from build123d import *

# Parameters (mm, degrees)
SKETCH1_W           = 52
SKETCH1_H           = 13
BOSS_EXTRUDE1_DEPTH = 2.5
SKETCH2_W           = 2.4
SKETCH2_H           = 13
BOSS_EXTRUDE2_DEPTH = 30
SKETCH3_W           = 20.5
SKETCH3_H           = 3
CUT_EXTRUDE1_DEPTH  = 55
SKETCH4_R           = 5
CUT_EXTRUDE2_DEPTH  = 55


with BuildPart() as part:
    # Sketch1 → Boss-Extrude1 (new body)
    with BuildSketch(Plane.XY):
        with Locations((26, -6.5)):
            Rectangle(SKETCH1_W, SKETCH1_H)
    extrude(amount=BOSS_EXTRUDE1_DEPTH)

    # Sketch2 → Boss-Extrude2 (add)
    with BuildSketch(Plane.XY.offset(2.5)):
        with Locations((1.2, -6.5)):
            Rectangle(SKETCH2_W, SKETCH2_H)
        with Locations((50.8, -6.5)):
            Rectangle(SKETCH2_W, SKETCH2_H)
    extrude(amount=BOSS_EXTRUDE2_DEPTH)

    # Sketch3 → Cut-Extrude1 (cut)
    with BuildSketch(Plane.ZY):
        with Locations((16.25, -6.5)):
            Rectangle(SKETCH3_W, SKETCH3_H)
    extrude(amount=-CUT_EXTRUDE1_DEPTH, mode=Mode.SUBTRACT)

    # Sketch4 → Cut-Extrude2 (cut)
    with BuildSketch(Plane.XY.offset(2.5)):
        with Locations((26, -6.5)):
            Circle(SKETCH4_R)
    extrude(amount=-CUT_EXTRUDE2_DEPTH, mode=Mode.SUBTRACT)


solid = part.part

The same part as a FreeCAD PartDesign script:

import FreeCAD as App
import Part
import Sketcher

V = App.Vector


def add_polygon(sketch, points):
    """Adds a closed chain of lines whose ends are joined by coincident constraints."""
    first, n = sketch.GeometryCount, len(points)
    for a, b in zip(points, points[1:] + points[:1]):
        sketch.addGeometry(Part.LineSegment(App.Vector(*a, 0), App.Vector(*b, 0)), False)
    for i in range(n):
        sketch.addConstraint(Sketcher.Constraint("Coincident", first + i, 2, first + (i + 1) % n, 1))

doc = App.newDocument("Part")
params = doc.addObject("Spreadsheet::Sheet", "Params")
for row, (alias, value) in enumerate([
    ("sketch1_width", "52 mm"),
    ("sketch1_height", "13 mm"),
    ("pad1_length", "2.5 mm"),
    ("sketch2_height", "13 mm"),
    ("sketch2_width", "2.4 mm"),
    ("pad2_length", "30 mm"),
    ("sketch3_width", "3 mm"),
    ("sketch3_height", "20.5 mm"),
    ("pocket1_length", "55 mm"),
    ("sketch4_diameter", "10 mm"),
    ("pocket2_length", "55 mm"),
], start=1):
    params.set(f"A{row}", alias)
    params.set(f"B{row}", "=" + value)
    params.setAlias(f"B{row}", alias)

body = doc.addObject("PartDesign::Body", "Body")

# Sketch on XY plane
sketch1 = body.newObject("Sketcher::SketchObject", "Sketch")
sketch1.AttachmentSupport = (doc.getObject("XY_Plane"), [""])
sketch1.MapMode = "FlatFace"
add_polygon(sketch1, [(0, 0), (0, -13), (52, -13), (52, 0)])  # lines 0-3
sketch1.addConstraint([
    Sketcher.Constraint("Vertical", 0),
    Sketcher.Constraint("Horizontal", 1),
    Sketcher.Constraint("Vertical", 2),
    Sketcher.Constraint("Horizontal", 3),
    Sketcher.Constraint("Coincident", 3, 2, -1, 1),
    Sketcher.Constraint("DistanceX", 1, 1, 1, 2, 52.0),
    Sketcher.Constraint("DistanceY", 0, 2, 0, 1, 13.0),
])
sketch1.setExpression("Constraints[9]", "Params.sketch1_width")
sketch1.setExpression("Constraints[10]", "Params.sketch1_height")
pad1 = body.newObject("PartDesign::Pad", "Pad")
pad1.Profile = sketch1
pad1.setExpression("Length", "Params.pad1_length")

# Sketch on XY plane
sketch2 = body.newObject("Sketcher::SketchObject", "Sketch001")
sketch2.AttachmentSupport = (doc.getObject("XY_Plane"), [""])
sketch2.MapMode = "FlatFace"
sketch2.AttachmentOffset = App.Placement(V(0, 0, 2.5), App.Rotation())
add_polygon(sketch2, [(0, 0), (0, -13), (2.4, -13), (2.4, 0)])  # lines 0-3
add_polygon(sketch2, [(49.6, 0), (49.6, -13), (52, -13), (52, 0)])  # lines 4-7
sketch2.addConstraint([
    Sketcher.Constraint("Vertical", 0),
    Sketcher.Constraint("Horizontal", 1),
    Sketcher.Constraint("Vertical", 2),
    Sketcher.Constraint("Horizontal", 3),
    Sketcher.Constraint("Vertical", 4),
    Sketcher.Constraint("Horizontal", 5),
    Sketcher.Constraint("Vertical", 6),
    Sketcher.Constraint("Horizontal", 7),
    Sketcher.Constraint("Coincident", 3, 2, -1, 1),
    Sketcher.Constraint("PointOnObject", 6, 2, -1),
    Sketcher.Constraint("Horizontal", 1, 2, 4, 2),
    Sketcher.Constraint("Equal", 3, 5),
    Sketcher.Constraint("DistanceY", 0, 2, 0, 1, 13.0),
    Sketcher.Constraint("DistanceX", 1, 1, 1, 2, 2.4),
    Sketcher.Constraint("DistanceX", -1, 1, 5, 2, 52.0),
])
sketch2.setExpression("Constraints[20]", "Params.sketch2_height")
sketch2.setExpression("Constraints[21]", "Params.sketch2_width")
pad2 = body.newObject("PartDesign::Pad", "Pad001")
pad2.Profile = sketch2
pad2.setExpression("Length", "Params.pad2_length")

# Sketch on YZ plane
sketch3 = body.newObject("Sketcher::SketchObject", "Sketch002")
sketch3.AttachmentSupport = (doc.getObject("YZ_Plane"), [""])
sketch3.MapMode = "FlatFace"
add_polygon(sketch3, [(-5, 6), (-8, 6), (-8, 26.5), (-5, 26.5)])  # lines 0-3
sketch3.addConstraint([
    Sketcher.Constraint("Horizontal", 0),
    Sketcher.Constraint("Vertical", 1),
    Sketcher.Constraint("Horizontal", 2),
    Sketcher.Constraint("Vertical", 3),
    Sketcher.Constraint("DistanceX", 0, 2, 0, 1, 3.0),
    Sketcher.Constraint("DistanceY", 1, 1, 1, 2, 20.5),
    Sketcher.Constraint("DistanceX", 0, 2, -1, 1, 8.0),
    Sketcher.Constraint("DistanceY", -1, 1, 0, 2, 6.0),
])
sketch3.setExpression("Constraints[8]", "Params.sketch3_width")
sketch3.setExpression("Constraints[9]", "Params.sketch3_height")
pocket1 = body.newObject("PartDesign::Pocket", "Pocket")
pocket1.Profile = sketch3
pocket1.setExpression("Length", "Params.pocket1_length")
pocket1.Reversed = True

# Sketch on XY plane
sketch4 = body.newObject("Sketcher::SketchObject", "Sketch003")
sketch4.AttachmentSupport = (doc.getObject("XY_Plane"), [""])
sketch4.MapMode = "FlatFace"
sketch4.AttachmentOffset = App.Placement(V(0, 0, 2.5), App.Rotation())
sketch4.addGeometry(Part.Circle(V(26, -6, 0), V(0, 0, 1), 5), False)
sketch4.addConstraint([
    Sketcher.Constraint("Diameter", 0, 10.0),
    Sketcher.Constraint("DistanceX", -1, 1, 0, 3, 26.0),
    Sketcher.Constraint("DistanceY", 0, 3, -1, 1, 6.5),
])
sketch4.setExpression("Constraints[0]", "Params.sketch4_diameter")
pocket2 = body.newObject("PartDesign::Pocket", "Pocket001")
pocket2.Profile = sketch4
pocket2.setExpression("Length", "Params.pocket2_length")

doc.recompute()
